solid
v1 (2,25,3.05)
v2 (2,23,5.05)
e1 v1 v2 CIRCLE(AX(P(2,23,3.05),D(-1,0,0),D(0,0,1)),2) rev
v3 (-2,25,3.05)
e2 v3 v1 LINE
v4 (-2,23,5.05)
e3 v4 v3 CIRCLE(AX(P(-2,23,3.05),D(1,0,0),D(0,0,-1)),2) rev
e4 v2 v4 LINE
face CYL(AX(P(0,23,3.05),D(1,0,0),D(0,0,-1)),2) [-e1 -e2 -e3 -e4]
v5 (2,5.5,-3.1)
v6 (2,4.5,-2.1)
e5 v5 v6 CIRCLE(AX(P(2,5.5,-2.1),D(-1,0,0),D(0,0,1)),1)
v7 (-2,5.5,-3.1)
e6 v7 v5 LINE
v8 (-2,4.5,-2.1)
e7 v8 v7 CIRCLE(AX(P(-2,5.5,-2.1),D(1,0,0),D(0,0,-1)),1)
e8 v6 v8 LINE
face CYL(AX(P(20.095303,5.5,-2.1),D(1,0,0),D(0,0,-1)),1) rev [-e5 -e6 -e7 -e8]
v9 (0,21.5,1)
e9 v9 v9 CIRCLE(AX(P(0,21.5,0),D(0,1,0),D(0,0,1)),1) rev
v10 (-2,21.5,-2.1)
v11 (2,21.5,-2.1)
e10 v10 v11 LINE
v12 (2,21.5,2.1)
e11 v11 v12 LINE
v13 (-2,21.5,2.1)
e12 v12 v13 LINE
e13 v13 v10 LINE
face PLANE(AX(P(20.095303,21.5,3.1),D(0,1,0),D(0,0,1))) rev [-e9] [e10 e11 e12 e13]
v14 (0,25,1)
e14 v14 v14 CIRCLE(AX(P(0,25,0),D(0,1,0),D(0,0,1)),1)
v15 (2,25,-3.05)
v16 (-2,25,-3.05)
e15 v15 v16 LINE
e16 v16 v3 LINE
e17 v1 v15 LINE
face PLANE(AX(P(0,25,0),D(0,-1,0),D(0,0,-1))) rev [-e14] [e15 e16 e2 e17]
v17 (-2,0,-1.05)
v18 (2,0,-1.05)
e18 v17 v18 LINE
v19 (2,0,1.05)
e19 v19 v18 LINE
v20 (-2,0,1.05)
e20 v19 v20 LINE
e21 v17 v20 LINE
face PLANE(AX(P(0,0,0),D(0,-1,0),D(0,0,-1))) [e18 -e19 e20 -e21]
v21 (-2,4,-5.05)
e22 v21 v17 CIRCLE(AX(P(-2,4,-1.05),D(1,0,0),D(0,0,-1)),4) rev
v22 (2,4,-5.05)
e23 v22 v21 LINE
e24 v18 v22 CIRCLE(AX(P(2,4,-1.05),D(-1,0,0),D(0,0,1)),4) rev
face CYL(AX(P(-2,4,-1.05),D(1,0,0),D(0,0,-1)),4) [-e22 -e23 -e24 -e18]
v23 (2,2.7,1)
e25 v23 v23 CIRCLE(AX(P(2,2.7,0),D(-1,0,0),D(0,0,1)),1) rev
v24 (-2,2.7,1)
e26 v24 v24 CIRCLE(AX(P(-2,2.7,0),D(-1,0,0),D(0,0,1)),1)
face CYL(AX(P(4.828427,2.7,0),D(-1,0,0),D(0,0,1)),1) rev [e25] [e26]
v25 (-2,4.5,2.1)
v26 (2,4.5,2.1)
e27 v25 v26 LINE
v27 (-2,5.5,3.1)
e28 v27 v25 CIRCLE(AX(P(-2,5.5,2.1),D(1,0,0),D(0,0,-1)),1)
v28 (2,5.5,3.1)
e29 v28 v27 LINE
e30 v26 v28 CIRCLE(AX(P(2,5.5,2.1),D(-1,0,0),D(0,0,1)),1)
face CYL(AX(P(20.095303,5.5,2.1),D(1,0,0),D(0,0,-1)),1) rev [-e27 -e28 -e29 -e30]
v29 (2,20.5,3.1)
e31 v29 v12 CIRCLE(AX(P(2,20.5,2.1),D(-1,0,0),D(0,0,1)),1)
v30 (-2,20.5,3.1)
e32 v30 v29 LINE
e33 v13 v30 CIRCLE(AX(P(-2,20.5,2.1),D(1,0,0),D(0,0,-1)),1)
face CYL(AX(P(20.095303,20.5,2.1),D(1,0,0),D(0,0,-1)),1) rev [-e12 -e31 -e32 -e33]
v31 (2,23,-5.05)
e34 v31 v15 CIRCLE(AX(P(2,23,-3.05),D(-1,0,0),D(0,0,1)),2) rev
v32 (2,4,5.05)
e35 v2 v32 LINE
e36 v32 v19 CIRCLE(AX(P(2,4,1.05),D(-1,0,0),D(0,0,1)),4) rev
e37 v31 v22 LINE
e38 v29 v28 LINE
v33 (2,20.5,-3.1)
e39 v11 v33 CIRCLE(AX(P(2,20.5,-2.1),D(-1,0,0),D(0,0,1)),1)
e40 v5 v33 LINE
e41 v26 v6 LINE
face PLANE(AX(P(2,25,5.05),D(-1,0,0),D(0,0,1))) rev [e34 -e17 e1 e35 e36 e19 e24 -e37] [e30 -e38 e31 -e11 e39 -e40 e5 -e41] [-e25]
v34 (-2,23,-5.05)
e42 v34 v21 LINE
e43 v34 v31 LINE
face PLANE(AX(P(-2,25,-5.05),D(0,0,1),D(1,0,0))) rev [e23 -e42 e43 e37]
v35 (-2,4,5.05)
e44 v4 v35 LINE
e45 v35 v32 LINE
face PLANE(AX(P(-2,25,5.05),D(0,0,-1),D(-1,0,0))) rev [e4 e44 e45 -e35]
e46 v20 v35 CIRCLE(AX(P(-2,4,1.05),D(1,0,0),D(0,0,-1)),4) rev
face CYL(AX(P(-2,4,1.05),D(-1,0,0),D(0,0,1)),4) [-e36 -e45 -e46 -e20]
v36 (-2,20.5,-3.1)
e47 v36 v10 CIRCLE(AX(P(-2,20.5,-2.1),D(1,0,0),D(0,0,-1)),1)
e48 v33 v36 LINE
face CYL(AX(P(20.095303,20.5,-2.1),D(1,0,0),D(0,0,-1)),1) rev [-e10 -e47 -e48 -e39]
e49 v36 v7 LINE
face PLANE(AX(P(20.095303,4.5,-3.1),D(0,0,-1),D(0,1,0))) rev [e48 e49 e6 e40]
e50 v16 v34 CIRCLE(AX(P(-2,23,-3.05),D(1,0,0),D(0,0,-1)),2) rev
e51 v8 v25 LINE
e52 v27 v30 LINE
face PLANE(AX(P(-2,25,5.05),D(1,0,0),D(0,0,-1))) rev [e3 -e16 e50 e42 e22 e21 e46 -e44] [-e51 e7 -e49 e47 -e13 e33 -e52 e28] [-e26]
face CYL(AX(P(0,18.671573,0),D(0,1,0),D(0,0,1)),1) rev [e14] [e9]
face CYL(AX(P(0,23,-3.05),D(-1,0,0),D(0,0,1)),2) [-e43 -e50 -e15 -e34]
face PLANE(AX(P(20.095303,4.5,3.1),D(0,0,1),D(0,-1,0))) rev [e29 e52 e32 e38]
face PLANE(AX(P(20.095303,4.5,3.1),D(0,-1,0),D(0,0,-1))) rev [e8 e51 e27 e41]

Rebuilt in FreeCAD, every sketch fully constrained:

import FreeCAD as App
import Part
import Sketcher

V = App.Vector
Q = App.Units.Quantity


def edges_at(feature, points):
    """Names of the edges that pass closest to the given points."""
    edges = feature.Shape.Edges
    near = lambda p: min(range(len(edges)), key=lambda i: edges[i].distToShape(Part.Vertex(*p))[0])
    return sorted({f"Edge{near(p) + 1}" for p in points})

doc = App.newDocument("Part")
params = doc.addObject("Spreadsheet::Sheet", "Params")
for row, (alias, value) in enumerate([
    ("sketch1_width", "4 mm"),
    ("sketch1_height", "10.1 mm"),
    ("pad1_length", "25 mm"),
    ("sketch2_diameter", "2 mm"),
    ("pocket1_length", "4 mm"),
    ("sketch3_width", "17 mm"),
    ("sketch3_height", "6.2 mm"),
    ("pocket2_length", "4 mm"),
    ("sketch4_diameter", "2 mm"),
    ("pocket3_length", "3.5 mm"),
    ("fillet_radius", "4 mm"),
    ("fillet2_radius", "2 mm"),
    ("fillet3_radius", "1 mm"),
], start=1):
    params.set(f"A{row}", alias)
    params.set(f"B{row}", "=" + value)
    params.setAlias(f"B{row}", alias)

body = doc.addObject("PartDesign::Body", "Body")

# Sketch on XZ plane
sketch1 = doc.addObject("Sketcher::SketchObject", "Sketch")
body.addObject(sketch1)
sketch1.AttachmentSupport = (doc.XZ_Plane, [""])
sketch1.MapMode = "FlatFace"
sketch1.addGeometry([
    Part.LineSegment(V(-2, -5, 0), V(-2, 5, 0)),
    Part.LineSegment(V(-2, 5, 0), V(2, 5, 0)),
    Part.LineSegment(V(2, 5, 0), V(2, -5, 0)),
    Part.LineSegment(V(2, -5, 0), V(-2, -5, 0)),
], False)
sketch1.addConstraint([
    Sketcher.Constraint("Coincident", 0, 2, 1, 1),
    Sketcher.Constraint("Coincident", 1, 2, 2, 1),
    Sketcher.Constraint("Coincident", 2, 2, 3, 1),
    Sketcher.Constraint("Coincident", 3, 2, 0, 1),
    Sketcher.Constraint("Vertical", 0),
    Sketcher.Constraint("Horizontal", 1),
    Sketcher.Constraint("Vertical", 2),
    Sketcher.Constraint("Horizontal", 3),
    Sketcher.Constraint("Symmetric", 0, 2, 2, 2, -1, 1),
    Sketcher.Constraint("DistanceX", 1, 1, 1, 2, Q("4 mm")),
    Sketcher.Constraint("DistanceY", 0, 1, 0, 2, Q("10.1 mm")),
])
sketch1.setExpression("Constraints[9]", "Params.sketch1_width")
sketch1.setExpression("Constraints[10]", "Params.sketch1_height")
pad1 = doc.addObject("PartDesign::Pad", "Pad")
body.addObject(pad1)
pad1.Profile = sketch1
pad1.setExpression("Length", "Params.pad1_length")
pad1.Reversed = True

# Sketch on YZ plane
sketch2 = doc.addObject("Sketcher::SketchObject", "Sketch001")
body.addObject(sketch2)
sketch2.AttachmentSupport = (doc.YZ_Plane, [""])
sketch2.MapMode = "FlatFace"
sketch2.AttachmentOffset = App.Placement(V(0, 0, -2), App.Rotation())
sketch2.addGeometry(Part.Circle(V(2.7, 0, 0), V(0, 0, 1), 1), False)
sketch2.addConstraint([
    Sketcher.Constraint("PointOnObject", 0, 3, -1),
    Sketcher.Constraint("Diameter", 0, Q("2 mm")),
    Sketcher.Constraint("DistanceX", -1, 1, 0, 3, Q("2.7 mm")),
])
sketch2.setExpression("Constraints[1]", "Params.sketch2_diameter")
pocket1 = doc.addObject("PartDesign::Pocket", "Pocket")
body.addObject(pocket1)
pocket1.Profile = sketch2
pocket1.setExpression("Length", "Params.pocket1_length")
pocket1.Reversed = True

# Sketch on YZ plane
sketch3 = doc.addObject("Sketcher::SketchObject", "Sketch002")
body.addObject(sketch3)
sketch3.AttachmentSupport = (doc.YZ_Plane, [""])
sketch3.MapMode = "FlatFace"
sketch3.AttachmentOffset = App.Placement(V(0, 0, -2), App.Rotation())
sketch3.addGeometry([
    Part.LineSegment(V(22, -3, 0), V(4, -3, 0)),
    Part.LineSegment(V(4, -3, 0), V(4, 3, 0)),
    Part.LineSegment(V(4, 3, 0), V(22, 3, 0)),
    Part.LineSegment(V(22, 3, 0), V(22, -3, 0)),
], False)
sketch3.addConstraint([
    Sketcher.Constraint("Coincident", 0, 2, 1, 1),
    Sketcher.Constraint("Coincident", 1, 2, 2, 1),
    Sketcher.Constraint("Coincident", 2, 2, 3, 1),
    Sketcher.Constraint("Coincident", 3, 2, 0, 1),
    Sketcher.Constraint("Horizontal", 0),
    Sketcher.Constraint("Vertical", 1),
    Sketcher.Constraint("Horizontal", 2),
    Sketcher.Constraint("Vertical", 3),
    Sketcher.Constraint("DistanceX", 0, 2, 0, 1, Q("17 mm")),
    Sketcher.Constraint("DistanceY", 1, 1, 1, 2, Q("6.2 mm")),
    Sketcher.Constraint("DistanceX", -1, 1, 0, 2, Q("4.5 mm")),
    Sketcher.Constraint("DistanceY", 0, 2, -1, 1, Q("3.1 mm")),
])
sketch3.setExpression("Constraints[8]", "Params.sketch3_width")
sketch3.setExpression("Constraints[9]", "Params.sketch3_height")
pocket2 = doc.addObject("PartDesign::Pocket", "Pocket001")
body.addObject(pocket2)
pocket2.Profile = sketch3
pocket2.setExpression("Length", "Params.pocket2_length")
pocket2.Reversed = True

# Sketch on XZ plane
sketch4 = doc.addObject("Sketcher::SketchObject", "Sketch003")
body.addObject(sketch4)
sketch4.AttachmentSupport = (doc.XZ_Plane, [""])
sketch4.MapMode = "FlatFace"
sketch4.AttachmentOffset = App.Placement(V(0, 0, -25), App.Rotation())
sketch4.addGeometry(Part.Circle(V(0, 0, 0), V(0, 0, 1), 1), False)
sketch4.addConstraint([
    Sketcher.Constraint("Coincident", 0, 3, -1, 1),
    Sketcher.Constraint("Diameter", 0, Q("2 mm")),
])
sketch4.setExpression("Constraints[1]", "Params.sketch4_diameter")
pocket3 = doc.addObject("PartDesign::Pocket", "Pocket002")
body.addObject(pocket3)
pocket3.Profile = sketch4
pocket3.setExpression("Length", "Params.pocket3_length")
pocket3.Reversed = True
doc.recompute()

fillet = doc.addObject("PartDesign::Fillet", "Fillet")
body.addObject(fillet)
fillet.Base = (pocket3, edges_at(pocket3, [(0, 0, 5.05), (0, 0, -5.05)]))
fillet.setExpression("Radius", "Params.fillet_radius")
doc.recompute()

fillet2 = doc.addObject("PartDesign::Fillet", "Fillet001")
body.addObject(fillet2)
fillet2.Base = (fillet, edges_at(fillet, [(0, 25, 5.05), (0, 25, -5.05)]))
fillet2.setExpression("Radius", "Params.fillet2_radius")
doc.recompute()

fillet3 = doc.addObject("PartDesign::Fillet", "Fillet002")
body.addObject(fillet3)
fillet3.Base = (fillet2, edges_at(fillet2, [
    (0, 21.5, 3.1),
    (0, 4.5, 3.1),
    (0, 4.5, -3.1),
    (0, 21.5, -3.1),
]))
fillet3.setExpression("Radius", "Params.fillet3_radius")

doc.recompute()
